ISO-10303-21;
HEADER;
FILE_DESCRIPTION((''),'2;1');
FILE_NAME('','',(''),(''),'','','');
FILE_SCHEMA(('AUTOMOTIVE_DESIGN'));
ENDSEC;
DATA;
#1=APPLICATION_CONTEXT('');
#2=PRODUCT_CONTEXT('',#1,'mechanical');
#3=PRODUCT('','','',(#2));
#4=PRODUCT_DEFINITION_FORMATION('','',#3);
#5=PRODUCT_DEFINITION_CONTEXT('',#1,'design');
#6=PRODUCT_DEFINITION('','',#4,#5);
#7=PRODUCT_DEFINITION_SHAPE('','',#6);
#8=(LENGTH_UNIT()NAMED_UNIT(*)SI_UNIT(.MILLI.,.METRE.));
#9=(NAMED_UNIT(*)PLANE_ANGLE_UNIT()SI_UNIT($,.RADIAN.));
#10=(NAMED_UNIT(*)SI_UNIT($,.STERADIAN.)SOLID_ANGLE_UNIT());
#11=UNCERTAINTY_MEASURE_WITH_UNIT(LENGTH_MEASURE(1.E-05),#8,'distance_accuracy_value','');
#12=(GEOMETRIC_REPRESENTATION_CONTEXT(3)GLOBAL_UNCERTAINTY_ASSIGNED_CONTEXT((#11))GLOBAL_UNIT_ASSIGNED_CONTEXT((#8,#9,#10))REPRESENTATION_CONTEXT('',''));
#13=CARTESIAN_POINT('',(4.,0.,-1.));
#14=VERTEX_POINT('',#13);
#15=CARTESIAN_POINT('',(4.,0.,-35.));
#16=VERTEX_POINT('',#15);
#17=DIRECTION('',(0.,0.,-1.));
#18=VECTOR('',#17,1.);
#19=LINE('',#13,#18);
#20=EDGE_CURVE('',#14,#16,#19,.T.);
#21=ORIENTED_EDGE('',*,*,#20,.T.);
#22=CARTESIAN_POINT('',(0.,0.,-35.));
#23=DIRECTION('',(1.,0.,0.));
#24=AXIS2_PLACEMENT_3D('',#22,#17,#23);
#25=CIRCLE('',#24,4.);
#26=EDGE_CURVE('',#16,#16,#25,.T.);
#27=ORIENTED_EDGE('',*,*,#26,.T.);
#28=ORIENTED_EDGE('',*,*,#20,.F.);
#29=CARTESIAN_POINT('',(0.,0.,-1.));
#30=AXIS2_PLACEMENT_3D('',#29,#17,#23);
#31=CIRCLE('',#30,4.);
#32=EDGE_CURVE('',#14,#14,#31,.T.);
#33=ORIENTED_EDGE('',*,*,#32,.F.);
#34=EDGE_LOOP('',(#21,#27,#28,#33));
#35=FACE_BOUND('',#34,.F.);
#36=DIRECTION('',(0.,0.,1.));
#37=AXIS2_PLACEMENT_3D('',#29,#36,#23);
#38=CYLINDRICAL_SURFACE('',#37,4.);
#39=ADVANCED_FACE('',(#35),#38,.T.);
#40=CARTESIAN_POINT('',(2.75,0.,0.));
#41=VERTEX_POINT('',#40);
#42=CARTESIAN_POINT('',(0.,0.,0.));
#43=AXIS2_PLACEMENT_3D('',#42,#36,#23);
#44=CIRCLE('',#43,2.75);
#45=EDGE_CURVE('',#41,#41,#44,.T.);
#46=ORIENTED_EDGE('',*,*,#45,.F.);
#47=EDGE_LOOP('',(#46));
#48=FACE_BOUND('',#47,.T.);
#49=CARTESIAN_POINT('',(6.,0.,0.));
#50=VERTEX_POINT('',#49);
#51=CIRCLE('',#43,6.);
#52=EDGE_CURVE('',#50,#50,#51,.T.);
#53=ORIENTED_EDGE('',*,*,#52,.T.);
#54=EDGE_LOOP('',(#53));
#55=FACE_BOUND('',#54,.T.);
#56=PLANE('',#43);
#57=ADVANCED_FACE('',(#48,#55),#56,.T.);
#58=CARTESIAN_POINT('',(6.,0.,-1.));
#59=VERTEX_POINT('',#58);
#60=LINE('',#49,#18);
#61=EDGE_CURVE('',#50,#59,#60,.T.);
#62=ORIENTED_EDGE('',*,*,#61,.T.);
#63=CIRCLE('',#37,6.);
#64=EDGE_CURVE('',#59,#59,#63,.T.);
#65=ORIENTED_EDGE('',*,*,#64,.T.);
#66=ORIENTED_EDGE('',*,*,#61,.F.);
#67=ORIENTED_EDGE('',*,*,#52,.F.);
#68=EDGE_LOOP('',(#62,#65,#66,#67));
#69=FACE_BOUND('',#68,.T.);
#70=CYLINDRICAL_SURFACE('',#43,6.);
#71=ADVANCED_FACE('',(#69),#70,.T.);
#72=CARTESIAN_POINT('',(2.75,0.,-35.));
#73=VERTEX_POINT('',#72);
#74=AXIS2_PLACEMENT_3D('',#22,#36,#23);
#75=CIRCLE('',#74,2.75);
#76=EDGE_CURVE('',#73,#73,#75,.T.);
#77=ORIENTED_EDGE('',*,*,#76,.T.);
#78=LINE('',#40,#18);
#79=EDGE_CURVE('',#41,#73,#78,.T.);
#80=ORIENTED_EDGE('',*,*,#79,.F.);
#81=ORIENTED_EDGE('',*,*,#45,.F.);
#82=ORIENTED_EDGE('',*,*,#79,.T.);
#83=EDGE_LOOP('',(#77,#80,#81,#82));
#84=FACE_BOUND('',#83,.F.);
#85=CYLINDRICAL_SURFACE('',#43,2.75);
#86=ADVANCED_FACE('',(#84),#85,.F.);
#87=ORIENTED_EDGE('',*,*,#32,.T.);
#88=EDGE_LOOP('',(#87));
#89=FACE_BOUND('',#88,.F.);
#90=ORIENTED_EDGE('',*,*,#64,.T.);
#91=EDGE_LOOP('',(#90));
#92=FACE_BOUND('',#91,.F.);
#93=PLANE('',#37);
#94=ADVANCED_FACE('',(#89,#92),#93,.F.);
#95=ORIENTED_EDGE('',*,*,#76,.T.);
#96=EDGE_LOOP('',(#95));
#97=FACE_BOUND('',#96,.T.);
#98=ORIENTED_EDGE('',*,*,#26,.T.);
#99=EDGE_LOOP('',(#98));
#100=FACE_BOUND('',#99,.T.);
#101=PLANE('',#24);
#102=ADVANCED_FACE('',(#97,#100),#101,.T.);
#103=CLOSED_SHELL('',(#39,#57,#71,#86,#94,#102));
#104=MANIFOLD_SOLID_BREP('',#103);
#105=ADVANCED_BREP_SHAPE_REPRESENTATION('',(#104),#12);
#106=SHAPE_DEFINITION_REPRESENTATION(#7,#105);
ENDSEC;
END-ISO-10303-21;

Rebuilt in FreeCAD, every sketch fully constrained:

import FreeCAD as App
import Part
import Sketcher

doc = App.newDocument("Part")
body = doc.addObject("PartDesign::Body", "Body")

# Sketch on XY plane
sketch1 = doc.addObject("Sketcher::SketchObject", "Sketch")
body.addObject(sketch1)
sketch1.AttachmentSupport = (doc.XY_Plane, [""])
sketch1.MapMode = "FlatFace"
sketch1.addGeometry(Part.Circle(App.Vector(0, 0, 0), App.Vector(0, 0, 1), 6), False)
sketch1.addConstraint([
    Sketcher.Constraint("Coincident", 0, 3, -1, 1),
    Sketcher.Constraint("Diameter", 0, 12.0),
])
pad1 = doc.addObject("PartDesign::Pad", "Pad")
body.addObject(pad1)
pad1.Profile = sketch1
pad1.Length = 1
pad1.Reversed = True

# Sketch on XY plane
sketch2 = doc.addObject("Sketcher::SketchObject", "Sketch001")
body.addObject(sketch2)
sketch2.AttachmentSupport = (doc.XY_Plane, [""])
sketch2.MapMode = "FlatFace"
sketch2.AttachmentOffset = App.Placement(App.Vector(0, 0, -1), App.Rotation())
sketch2.addGeometry(Part.Circle(App.Vector(0, 0, 0), App.Vector(0, 0, 1), 4), False)
sketch2.addConstraint([
    Sketcher.Constraint("Coincident", 0, 3, -1, 1),
    Sketcher.Constraint("Diameter", 0, 8.0),
])
pad2 = doc.addObject("PartDesign::Pad", "Pad001")
body.addObject(pad2)
pad2.Profile = sketch2
pad2.Length = 34
pad2.Reversed = True

# Sketch on XY plane
sketch3 = doc.addObject("Sketcher::SketchObject", "Sketch002")
body.addObject(sketch3)
sketch3.AttachmentSupport = (doc.XY_Plane, [""])
sketch3.MapMode = "FlatFace"
sketch3.addGeometry(Part.Circle(App.Vector(0, 0, 0), App.Vector(0, 0, 1), 2.8), False)
sketch3.addConstraint([
    Sketcher.Constraint("Coincident", 0, 3, -1, 1),
    Sketcher.Constraint("Diameter", 0, 5.5),
])
pocket1 = doc.addObject("PartDesign::Pocket", "Pocket")
body.addObject(pocket1)
pocket1.Profile = sketch3
pocket1.Length = 35

doc.recompute()
